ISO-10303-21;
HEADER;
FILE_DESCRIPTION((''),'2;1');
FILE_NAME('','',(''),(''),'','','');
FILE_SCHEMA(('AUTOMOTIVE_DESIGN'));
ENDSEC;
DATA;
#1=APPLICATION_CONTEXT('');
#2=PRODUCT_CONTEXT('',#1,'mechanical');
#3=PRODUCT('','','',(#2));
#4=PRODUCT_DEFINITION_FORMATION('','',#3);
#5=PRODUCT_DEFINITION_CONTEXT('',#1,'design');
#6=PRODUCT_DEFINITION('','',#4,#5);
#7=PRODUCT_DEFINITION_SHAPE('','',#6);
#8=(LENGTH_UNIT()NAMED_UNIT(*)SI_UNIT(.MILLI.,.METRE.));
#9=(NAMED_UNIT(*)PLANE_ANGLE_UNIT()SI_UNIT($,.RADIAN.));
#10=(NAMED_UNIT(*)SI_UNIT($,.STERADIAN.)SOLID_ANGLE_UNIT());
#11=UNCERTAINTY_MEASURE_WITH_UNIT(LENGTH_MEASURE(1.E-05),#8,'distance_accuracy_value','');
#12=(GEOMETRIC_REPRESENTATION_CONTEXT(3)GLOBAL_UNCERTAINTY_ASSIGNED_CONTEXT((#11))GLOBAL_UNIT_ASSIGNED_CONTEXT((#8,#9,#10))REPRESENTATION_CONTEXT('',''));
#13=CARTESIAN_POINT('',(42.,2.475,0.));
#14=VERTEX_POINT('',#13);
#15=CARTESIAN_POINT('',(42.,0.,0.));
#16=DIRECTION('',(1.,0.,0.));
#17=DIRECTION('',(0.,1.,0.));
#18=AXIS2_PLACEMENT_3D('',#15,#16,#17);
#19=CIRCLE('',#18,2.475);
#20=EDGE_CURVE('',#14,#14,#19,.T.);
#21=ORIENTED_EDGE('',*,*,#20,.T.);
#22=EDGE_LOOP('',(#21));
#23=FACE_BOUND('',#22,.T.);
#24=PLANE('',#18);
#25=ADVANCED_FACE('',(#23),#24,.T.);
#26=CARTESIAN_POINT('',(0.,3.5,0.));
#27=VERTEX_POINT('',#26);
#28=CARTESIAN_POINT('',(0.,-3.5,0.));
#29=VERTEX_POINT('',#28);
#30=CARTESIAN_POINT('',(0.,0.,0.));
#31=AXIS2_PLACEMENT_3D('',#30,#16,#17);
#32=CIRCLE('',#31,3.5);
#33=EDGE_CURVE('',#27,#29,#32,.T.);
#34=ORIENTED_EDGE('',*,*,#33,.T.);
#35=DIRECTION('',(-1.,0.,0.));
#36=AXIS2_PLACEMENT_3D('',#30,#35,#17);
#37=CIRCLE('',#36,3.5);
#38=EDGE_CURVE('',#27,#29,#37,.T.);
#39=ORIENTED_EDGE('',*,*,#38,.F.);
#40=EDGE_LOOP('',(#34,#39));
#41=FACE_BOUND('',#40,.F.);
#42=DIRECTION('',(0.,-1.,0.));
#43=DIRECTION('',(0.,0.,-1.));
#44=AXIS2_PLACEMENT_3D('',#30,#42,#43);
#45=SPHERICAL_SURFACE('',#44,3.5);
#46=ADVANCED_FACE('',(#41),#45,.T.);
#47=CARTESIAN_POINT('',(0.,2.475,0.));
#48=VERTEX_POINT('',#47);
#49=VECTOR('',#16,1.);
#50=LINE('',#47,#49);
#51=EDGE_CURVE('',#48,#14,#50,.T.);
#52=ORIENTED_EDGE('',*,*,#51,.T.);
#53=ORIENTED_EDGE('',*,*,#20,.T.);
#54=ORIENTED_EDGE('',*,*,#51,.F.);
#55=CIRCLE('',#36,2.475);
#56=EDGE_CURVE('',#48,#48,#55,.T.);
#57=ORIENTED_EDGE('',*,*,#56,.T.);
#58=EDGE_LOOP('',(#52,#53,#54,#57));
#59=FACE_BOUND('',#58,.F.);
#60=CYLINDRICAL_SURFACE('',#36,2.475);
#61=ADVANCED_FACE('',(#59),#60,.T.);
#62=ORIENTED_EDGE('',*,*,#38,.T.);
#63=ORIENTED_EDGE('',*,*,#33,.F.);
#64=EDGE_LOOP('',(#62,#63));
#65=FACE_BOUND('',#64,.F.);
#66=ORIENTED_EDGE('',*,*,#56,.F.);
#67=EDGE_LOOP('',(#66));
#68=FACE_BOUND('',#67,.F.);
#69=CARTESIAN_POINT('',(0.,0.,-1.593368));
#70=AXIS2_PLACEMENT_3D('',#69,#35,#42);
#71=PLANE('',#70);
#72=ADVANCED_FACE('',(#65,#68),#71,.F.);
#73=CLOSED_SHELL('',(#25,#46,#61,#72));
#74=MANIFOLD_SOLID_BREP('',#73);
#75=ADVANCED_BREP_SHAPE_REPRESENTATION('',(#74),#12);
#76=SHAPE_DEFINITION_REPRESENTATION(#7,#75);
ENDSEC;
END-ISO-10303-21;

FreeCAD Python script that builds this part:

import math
import FreeCAD as App
import Part
import Sketcher
from FreeCAD import Vector

doc = App.newDocument("Part")
params = doc.addObject("Spreadsheet::Sheet", "Params")
for row, (alias, value) in enumerate([
    ("sketch1_diameter", "4.95 mm"),
    ("pad1_length", "42 mm"),
    ("sketch2_radius", "3.5 mm"),
    ("revolution_angle", "180 deg"),
], start=1):
    params.set(f"A{row}", alias)
    params.set(f"B{row}", "=" + value)
    params.setAlias(f"B{row}", alias)

body = doc.addObject("PartDesign::Body", "Body")

# Sketch on YZ plane
sketch1 = body.newObject("Sketcher::SketchObject", "Sketch")
sketch1.AttachmentSupport = (doc.getObject("YZ_Plane"), [""])
sketch1.MapMode = "FlatFace"
sketch1.addGeometry(Part.Circle(Vector(0, 0, 0), Vector(0, 0, 1), 2.5), False)
sketch1.addConstraint(Sketcher.Constraint("Coincident", 0, 3, -1, 1))
sketch1.addConstraint(Sketcher.Constraint("Diameter", 0, 4.95))
sketch1.setExpression("Constraints[1]", "Params.sketch1_diameter")
pad1 = body.newObject("PartDesign::Pad", "Pad")
pad1.Profile = sketch1
pad1.setExpression("Length", "Params.pad1_length")

# Sketch on YZ plane
sketch2 = body.newObject("Sketcher::SketchObject", "Sketch001")
sketch2.AttachmentSupport = (doc.getObject("YZ_Plane"), [""])
sketch2.MapMode = "FlatFace"
sketch2.addGeometry(Part.ArcOfCircle(Part.Circle(Vector(0, 0, 0), Vector(0, 0, 1), 3.5), math.radians(180), math.radians(360)), False)
sketch2.addGeometry(Part.LineSegment(Vector(-3.5, 0, 0), Vector(3.5, 0, 0)), False)
sketch2.addConstraint(Sketcher.Constraint("Coincident", 0, 1, 1, 1))
sketch2.addConstraint(Sketcher.Constraint("Coincident", 1, 2, 0, 2))
sketch2.addConstraint(Sketcher.Constraint("Horizontal", 1))
sketch2.addConstraint(Sketcher.Constraint("Coincident", 0, 3, -1, 1))
sketch2.addConstraint(Sketcher.Constraint("PointOnObject", 0, 1, -1))
sketch2.addConstraint(Sketcher.Constraint("Radius", 0, 3.5))
sketch2.setExpression("Constraints[5]", "Params.sketch2_radius")
revolution = body.newObject("PartDesign::Revolution", "Revolution")
revolution.Profile = sketch2
revolution.ReferenceAxis = (sketch2, ["H_Axis"])
revolution.setExpression("Angle", "Params.revolution_angle")

doc.recompute()
